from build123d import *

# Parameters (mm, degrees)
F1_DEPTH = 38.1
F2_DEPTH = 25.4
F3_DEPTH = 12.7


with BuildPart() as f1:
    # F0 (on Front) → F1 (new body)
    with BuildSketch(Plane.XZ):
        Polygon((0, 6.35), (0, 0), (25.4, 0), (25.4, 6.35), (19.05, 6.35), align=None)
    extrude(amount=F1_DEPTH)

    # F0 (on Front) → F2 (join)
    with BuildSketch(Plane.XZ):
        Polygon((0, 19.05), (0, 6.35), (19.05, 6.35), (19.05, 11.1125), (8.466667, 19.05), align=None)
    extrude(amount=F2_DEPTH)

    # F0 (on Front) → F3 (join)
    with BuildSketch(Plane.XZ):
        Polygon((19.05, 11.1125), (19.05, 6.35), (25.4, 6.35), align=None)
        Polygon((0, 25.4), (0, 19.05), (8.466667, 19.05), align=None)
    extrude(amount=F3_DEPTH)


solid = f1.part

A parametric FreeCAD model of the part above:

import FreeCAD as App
import Part
import Sketcher

V = App.Vector
Q = App.Units.Quantity

doc = App.newDocument("Part")
body = doc.addObject("PartDesign::Body", "Body")

# Sketch on XZ plane
sketch1 = doc.addObject("Sketcher::SketchObject", "Sketch")
body.addObject(sketch1)
sketch1.AttachmentSupport = (doc.XZ_Plane, [""])
sketch1.MapMode = "FlatFace"
sketch1.addGeometry([
    Part.LineSegment(V(0, 6.35, 0), V(0, 0, 0)),
    Part.LineSegment(V(0, 0, 0), V(25.4, 0, 0)),
    Part.LineSegment(V(25.4, 0, 0), V(25.4, 6.35, 0)),
    Part.LineSegment(V(25.4, 6.35, 0), V(0, 6.35, 0)),
], False)
sketch1.addConstraint([
    Sketcher.Constraint("Coincident", 0, 2, 1, 1),
    Sketcher.Constraint("Coincident", 1, 2, 2, 1),
    Sketcher.Constraint("Coincident", 2, 2, 3, 1),
    Sketcher.Constraint("Coincident", 3, 2, 0, 1),
    Sketcher.Constraint("Vertical", 0),
    Sketcher.Constraint("Horizontal", 1),
    Sketcher.Constraint("Vertical", 2),
    Sketcher.Constraint("Horizontal", 3),
    Sketcher.Constraint("Coincident", 0, 2, -1, 1),
    Sketcher.Constraint("DistanceX", 1, 1, 1, 2, Q("1 in")),
    Sketcher.Constraint("DistanceY", 0, 2, 0, 1, Q("0.25 in")),
])
pad1 = doc.addObject("PartDesign::Pad", "Pad")
body.addObject(pad1)
pad1.Profile = sketch1
pad1.Length = Q("1.5 in")

# Sketch on XZ plane
sketch2 = doc.addObject("Sketcher::SketchObject", "Sketch001")
body.addObject(sketch2)
sketch2.AttachmentSupport = (doc.XZ_Plane, [""])
sketch2.MapMode = "FlatFace"
sketch2.addGeometry([
    Part.LineSegment(V(0, 19.05, 0), V(0, 6.35, 0)),  # 0
    Part.LineSegment(V(0, 6.35, 0), V(19.05, 6.35, 0)),  # 1
    Part.LineSegment(V(19.05, 6.35, 0), V(19.05, 11.1125, 0)),  # 2
    Part.LineSegment(V(19.05, 11.1125, 0), V(8.466667, 19.05, 0)),  # 3
    Part.LineSegment(V(8.466667, 19.05, 0), V(0, 19.05, 0)),  # 4
], False)
sketch2.addConstraint([
    Sketcher.Constraint("Coincident", 0, 2, 1, 1),
    Sketcher.Constraint("Coincident", 1, 2, 2, 1),
    Sketcher.Constraint("Coincident", 2, 2, 3, 1),
    Sketcher.Constraint("Coincident", 3, 2, 4, 1),
    Sketcher.Constraint("Coincident", 4, 2, 0, 1),
    Sketcher.Constraint("Vertical", 0),
    Sketcher.Constraint("Horizontal", 1),
    Sketcher.Constraint("Vertical", 2),
    Sketcher.Constraint("Horizontal", 4),
    Sketcher.Constraint("PointOnObject", 0, 2, -2),
    Sketcher.Constraint("DistanceY", 0, 2, 0, 1, Q("0.5 in")),
    Sketcher.Constraint("DistanceX", 1, 1, 1, 2, Q("0.75 in")),
    Sketcher.Constraint("DistanceY", 2, 1, 2, 2, Q("0.1875 in")),
    Sketcher.Constraint("DistanceY", -1, 1, 0, 2, Q("0.25 in")),
    Sketcher.Constraint("DistanceX", 4, 2, 4, 1, 8.466667),
])
pad2 = doc.addObject("PartDesign::Pad", "Pad001")
body.addObject(pad2)
pad2.Profile = sketch2
pad2.Length = Q("1 in")

# Sketch on XZ plane
sketch3 = doc.addObject("Sketcher::SketchObject", "Sketch002")
body.addObject(sketch3)
sketch3.AttachmentSupport = (doc.XZ_Plane, [""])
sketch3.MapMode = "FlatFace"
sketch3.addGeometry([
    Part.LineSegment(V(19.05, 11.1125, 0), V(19.05, 6.35, 0)),  # 0
    Part.LineSegment(V(19.05, 6.35, 0), V(25.4, 6.35, 0)),  # 1
    Part.LineSegment(V(25.4, 6.35, 0), V(19.05, 11.1125, 0)),  # 2
    Part.LineSegment(V(0, 25.4, 0), V(0, 19.05, 0)),  # 3
    Part.LineSegment(V(0, 19.05, 0), V(8.466667, 19.05, 0)),  # 4
    Part.LineSegment(V(8.466667, 19.05, 0), V(0, 25.4, 0)),  # 5
], False)
sketch3.addConstraint([
    Sketcher.Constraint("Coincident", 0, 2, 1, 1),
    Sketcher.Constraint("Coincident", 1, 2, 2, 1),
    Sketcher.Constraint("Coincident", 2, 2, 0, 1),
    Sketcher.Constraint("Coincident", 3, 2, 4, 1),
    Sketcher.Constraint("Coincident", 4, 2, 5, 1),
    Sketcher.Constraint("Coincident", 5, 2, 3, 1),
    Sketcher.Constraint("Vertical", 0),
    Sketcher.Constraint("Horizontal", 1),
    Sketcher.Constraint("Vertical", 3),
    Sketcher.Constraint("Horizontal", 4),
    Sketcher.Constraint("PointOnObject", 3, 2, -2),
    Sketcher.Constraint("Parallel", 2, 5),
    Sketcher.Constraint("Equal", 1, 3),
    Sketcher.Constraint("DistanceX", -1, 1, 1, 2, Q("1 in")),
    Sketcher.Constraint("DistanceY", -1, 1, 5, 2, Q("1 in")),
    Sketcher.Constraint("DistanceX", 1, 1, 1, 2, Q("0.25 in")),
    Sketcher.Constraint("DistanceY", 0, 2, 3, 2, Q("0.5 in")),
    Sketcher.Constraint("DistanceY", 0, 2, 0, 1, Q("0.1875 in")),
])
pad3 = doc.addObject("PartDesign::Pad", "Pad002")
body.addObject(pad3)
pad3.Profile = sketch3
pad3.Length = Q("0.5 in")

doc.recompute()
